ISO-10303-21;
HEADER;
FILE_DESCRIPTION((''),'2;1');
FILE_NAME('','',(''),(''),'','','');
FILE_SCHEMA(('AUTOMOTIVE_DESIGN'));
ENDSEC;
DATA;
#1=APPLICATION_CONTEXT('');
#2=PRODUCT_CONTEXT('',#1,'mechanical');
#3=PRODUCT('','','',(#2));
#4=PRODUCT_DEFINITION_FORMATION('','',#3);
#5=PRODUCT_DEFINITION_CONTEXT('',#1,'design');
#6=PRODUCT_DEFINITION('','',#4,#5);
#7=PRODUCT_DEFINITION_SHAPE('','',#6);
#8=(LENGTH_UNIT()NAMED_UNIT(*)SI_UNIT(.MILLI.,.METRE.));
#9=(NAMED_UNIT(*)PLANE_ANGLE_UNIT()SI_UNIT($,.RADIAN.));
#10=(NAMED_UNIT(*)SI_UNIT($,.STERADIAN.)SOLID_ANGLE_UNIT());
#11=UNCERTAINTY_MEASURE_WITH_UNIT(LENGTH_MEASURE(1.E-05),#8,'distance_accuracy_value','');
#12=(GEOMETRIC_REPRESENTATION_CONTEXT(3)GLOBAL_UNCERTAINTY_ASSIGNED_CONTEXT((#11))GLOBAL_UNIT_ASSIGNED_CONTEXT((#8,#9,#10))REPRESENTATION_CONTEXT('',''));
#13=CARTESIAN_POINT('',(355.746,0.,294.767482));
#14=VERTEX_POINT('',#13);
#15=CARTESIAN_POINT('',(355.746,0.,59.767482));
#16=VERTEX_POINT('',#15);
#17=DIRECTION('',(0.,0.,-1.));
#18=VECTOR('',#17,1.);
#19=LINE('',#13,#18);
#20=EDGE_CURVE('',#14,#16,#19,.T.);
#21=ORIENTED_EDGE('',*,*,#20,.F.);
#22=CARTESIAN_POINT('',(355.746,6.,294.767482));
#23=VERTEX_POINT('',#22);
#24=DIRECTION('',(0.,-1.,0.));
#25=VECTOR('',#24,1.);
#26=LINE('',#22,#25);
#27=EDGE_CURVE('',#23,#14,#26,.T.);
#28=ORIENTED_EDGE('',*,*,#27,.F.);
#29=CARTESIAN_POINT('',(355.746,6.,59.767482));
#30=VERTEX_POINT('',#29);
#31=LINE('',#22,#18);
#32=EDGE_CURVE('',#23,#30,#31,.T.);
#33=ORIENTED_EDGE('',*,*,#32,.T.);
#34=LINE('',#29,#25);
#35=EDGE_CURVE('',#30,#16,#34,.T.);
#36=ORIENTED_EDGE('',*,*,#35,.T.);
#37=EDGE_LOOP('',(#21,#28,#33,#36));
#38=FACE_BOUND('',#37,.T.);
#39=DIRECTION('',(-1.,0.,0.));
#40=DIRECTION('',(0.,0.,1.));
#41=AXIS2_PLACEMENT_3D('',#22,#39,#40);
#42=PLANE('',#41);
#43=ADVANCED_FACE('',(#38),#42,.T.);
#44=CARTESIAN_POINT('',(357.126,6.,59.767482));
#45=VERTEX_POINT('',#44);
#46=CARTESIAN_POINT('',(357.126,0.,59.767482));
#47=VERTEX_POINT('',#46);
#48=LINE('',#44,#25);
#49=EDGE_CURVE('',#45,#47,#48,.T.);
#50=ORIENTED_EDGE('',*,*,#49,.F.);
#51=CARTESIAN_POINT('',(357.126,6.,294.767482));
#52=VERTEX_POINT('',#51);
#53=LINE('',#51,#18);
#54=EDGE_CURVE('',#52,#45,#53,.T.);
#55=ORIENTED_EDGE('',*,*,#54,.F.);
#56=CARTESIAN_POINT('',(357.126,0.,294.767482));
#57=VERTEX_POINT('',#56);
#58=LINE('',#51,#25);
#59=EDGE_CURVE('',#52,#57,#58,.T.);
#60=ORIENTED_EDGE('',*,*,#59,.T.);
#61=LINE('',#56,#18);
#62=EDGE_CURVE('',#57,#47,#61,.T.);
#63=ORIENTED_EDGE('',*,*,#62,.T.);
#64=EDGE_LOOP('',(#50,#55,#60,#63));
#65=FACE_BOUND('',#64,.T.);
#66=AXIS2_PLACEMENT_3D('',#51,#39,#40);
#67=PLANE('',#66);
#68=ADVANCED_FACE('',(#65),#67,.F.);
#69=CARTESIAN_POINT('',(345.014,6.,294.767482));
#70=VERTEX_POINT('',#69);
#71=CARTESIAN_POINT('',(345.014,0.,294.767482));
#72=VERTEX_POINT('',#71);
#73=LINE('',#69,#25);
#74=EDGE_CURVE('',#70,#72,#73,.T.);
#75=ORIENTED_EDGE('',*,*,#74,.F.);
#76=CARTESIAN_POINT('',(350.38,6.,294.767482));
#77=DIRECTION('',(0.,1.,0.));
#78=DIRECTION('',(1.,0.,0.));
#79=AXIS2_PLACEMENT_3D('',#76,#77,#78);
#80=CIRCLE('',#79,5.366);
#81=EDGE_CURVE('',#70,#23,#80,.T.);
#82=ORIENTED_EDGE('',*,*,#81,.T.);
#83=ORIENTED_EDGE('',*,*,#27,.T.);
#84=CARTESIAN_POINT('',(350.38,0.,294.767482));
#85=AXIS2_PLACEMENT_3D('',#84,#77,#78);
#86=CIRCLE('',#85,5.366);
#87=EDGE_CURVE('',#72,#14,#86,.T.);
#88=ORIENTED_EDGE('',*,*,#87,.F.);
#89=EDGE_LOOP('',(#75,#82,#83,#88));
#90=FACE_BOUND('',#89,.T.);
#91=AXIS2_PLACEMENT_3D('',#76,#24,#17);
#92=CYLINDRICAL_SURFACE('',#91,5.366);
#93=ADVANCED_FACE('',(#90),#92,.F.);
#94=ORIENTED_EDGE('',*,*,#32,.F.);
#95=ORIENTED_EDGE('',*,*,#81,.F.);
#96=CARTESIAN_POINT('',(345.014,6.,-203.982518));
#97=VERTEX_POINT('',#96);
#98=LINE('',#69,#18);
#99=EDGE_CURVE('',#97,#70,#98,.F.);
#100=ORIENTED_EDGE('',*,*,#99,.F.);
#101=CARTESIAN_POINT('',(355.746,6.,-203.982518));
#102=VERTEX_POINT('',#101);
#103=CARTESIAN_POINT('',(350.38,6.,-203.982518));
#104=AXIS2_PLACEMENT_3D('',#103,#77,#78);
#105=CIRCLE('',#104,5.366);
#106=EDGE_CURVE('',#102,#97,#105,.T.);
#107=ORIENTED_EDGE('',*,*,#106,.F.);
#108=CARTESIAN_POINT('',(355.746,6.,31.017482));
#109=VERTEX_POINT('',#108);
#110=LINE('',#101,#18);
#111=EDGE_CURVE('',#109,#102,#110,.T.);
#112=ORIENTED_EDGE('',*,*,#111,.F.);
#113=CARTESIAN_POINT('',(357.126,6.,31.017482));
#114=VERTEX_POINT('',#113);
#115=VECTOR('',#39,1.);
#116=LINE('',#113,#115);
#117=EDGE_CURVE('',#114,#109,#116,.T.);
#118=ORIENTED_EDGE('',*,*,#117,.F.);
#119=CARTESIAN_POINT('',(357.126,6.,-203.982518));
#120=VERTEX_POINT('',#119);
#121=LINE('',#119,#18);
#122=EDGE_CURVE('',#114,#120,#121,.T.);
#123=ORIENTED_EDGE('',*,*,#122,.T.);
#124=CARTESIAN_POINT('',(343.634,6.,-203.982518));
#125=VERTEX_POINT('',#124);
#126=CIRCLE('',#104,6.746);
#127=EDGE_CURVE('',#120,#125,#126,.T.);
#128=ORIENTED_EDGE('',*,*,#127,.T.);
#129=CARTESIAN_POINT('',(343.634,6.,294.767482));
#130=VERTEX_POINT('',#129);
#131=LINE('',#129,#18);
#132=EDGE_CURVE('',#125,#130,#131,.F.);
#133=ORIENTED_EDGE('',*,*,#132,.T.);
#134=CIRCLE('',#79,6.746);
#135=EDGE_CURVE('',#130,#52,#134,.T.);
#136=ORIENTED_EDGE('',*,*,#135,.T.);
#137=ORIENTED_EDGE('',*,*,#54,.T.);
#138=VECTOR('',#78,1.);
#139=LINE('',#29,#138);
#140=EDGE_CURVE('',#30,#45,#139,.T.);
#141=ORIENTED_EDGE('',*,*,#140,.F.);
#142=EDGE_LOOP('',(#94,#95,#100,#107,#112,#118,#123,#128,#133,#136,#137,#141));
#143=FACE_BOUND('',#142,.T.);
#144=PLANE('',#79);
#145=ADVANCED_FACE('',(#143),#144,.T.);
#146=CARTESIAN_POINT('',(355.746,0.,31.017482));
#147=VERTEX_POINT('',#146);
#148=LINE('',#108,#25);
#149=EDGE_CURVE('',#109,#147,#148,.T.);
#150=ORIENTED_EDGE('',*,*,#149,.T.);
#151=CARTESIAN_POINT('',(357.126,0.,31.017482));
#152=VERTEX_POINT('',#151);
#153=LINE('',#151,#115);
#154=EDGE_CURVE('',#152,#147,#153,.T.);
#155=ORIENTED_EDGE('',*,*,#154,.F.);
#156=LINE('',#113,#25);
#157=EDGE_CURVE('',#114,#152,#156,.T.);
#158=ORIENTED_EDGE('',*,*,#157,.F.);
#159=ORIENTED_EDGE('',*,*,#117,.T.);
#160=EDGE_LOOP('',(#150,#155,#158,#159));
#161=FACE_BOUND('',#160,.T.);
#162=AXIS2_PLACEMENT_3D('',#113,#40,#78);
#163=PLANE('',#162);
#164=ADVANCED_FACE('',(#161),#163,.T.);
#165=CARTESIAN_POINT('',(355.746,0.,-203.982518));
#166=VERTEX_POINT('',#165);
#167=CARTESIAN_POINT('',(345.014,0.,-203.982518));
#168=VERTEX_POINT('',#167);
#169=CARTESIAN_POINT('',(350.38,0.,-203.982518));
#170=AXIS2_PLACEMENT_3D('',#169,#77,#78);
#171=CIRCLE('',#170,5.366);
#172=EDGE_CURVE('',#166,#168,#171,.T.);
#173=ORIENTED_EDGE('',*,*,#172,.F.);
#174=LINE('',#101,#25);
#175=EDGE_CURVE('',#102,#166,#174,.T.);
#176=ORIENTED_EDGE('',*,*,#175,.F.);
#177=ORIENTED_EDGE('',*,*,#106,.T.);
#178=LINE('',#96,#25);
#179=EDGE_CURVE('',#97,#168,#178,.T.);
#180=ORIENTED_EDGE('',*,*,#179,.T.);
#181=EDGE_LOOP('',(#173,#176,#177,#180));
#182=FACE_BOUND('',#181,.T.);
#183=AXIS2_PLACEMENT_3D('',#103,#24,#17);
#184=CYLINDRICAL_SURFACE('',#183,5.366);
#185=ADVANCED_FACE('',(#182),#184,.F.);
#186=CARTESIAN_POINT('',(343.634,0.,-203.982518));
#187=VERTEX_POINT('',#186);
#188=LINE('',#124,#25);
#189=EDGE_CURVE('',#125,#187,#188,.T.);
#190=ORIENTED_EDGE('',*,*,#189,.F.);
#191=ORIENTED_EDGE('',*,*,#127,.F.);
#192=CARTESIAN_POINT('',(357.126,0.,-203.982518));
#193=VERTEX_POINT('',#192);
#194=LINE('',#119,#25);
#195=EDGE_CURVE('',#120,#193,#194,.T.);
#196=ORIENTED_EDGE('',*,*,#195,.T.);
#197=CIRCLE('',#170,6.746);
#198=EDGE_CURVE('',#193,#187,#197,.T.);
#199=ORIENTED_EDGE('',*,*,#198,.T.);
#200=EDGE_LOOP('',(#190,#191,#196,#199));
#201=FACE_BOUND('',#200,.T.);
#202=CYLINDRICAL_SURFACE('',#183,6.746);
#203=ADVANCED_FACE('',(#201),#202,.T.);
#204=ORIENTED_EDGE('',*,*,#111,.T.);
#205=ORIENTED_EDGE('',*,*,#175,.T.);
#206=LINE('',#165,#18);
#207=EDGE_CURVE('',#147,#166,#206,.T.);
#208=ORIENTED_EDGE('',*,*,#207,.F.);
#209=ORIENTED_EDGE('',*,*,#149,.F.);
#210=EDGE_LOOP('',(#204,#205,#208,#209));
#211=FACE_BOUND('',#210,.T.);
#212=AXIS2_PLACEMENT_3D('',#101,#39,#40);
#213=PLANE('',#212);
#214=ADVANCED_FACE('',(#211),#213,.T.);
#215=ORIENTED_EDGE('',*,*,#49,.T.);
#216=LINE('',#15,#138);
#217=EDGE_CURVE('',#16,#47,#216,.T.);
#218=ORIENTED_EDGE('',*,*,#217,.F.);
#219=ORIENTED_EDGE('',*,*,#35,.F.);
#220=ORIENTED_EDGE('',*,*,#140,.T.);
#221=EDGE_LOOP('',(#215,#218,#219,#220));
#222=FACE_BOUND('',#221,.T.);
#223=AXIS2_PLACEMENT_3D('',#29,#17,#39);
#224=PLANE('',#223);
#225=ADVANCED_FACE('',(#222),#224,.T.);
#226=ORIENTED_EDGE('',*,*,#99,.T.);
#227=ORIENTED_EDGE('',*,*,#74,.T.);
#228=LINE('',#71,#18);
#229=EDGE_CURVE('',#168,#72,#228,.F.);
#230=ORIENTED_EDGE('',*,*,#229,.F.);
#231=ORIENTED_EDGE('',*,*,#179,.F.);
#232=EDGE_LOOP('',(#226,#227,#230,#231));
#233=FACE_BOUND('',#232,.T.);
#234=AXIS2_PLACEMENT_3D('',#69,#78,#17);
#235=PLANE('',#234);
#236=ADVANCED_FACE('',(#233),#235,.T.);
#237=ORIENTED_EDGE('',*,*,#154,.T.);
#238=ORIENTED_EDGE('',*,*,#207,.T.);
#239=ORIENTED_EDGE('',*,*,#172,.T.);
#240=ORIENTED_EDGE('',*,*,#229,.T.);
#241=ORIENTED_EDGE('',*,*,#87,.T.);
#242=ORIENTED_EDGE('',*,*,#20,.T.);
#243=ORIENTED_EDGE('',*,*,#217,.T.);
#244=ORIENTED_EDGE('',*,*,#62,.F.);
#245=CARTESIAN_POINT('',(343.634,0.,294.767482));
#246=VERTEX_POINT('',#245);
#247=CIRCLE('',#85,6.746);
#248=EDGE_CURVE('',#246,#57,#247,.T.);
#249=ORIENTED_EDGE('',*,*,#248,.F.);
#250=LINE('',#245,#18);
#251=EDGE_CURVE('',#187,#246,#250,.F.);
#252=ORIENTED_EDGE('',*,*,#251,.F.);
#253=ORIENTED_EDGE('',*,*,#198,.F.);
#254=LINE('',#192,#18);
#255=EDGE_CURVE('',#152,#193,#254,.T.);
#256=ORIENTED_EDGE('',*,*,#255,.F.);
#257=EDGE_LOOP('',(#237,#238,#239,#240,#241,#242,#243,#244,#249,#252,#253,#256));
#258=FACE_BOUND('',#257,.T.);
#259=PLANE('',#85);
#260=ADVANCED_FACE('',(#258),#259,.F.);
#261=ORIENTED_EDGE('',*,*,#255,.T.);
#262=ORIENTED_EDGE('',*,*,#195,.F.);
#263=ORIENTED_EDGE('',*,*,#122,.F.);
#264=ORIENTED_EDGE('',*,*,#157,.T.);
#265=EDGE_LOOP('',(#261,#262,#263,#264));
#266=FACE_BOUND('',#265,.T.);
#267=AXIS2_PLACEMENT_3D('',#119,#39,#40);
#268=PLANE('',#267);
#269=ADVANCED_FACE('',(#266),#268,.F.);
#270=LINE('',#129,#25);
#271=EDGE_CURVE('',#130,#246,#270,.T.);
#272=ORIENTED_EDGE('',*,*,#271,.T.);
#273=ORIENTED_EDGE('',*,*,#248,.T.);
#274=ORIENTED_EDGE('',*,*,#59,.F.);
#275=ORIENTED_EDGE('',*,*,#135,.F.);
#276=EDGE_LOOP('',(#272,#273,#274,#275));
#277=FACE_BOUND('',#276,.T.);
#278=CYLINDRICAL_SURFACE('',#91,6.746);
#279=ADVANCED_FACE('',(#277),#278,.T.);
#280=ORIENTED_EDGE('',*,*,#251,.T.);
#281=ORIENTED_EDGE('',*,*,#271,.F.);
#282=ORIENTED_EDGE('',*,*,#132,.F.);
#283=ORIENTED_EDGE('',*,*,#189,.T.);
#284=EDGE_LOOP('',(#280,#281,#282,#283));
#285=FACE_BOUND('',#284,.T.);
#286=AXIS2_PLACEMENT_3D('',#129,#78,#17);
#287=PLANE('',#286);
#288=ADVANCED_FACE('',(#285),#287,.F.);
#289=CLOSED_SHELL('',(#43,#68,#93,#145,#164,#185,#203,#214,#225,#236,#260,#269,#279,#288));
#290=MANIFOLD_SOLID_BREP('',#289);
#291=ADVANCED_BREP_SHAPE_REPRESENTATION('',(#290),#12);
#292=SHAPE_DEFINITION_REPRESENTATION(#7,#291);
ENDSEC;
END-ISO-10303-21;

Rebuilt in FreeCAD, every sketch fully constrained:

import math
import FreeCAD as App
import Part
import Sketcher
from FreeCAD import Vector

doc = App.newDocument("Part")
params = doc.addObject("Spreadsheet::Sheet", "Params")
for row, (alias, value) in enumerate([
    ("sketch1_height", "235 mm"),
    ("sketch1_height2", "498.75 mm"),
    ("pad1_length", "6 mm"),
], start=1):
    params.set(f"A{row}", alias)
    params.set(f"B{row}", "=" + value)
    params.setAlias(f"B{row}", alias)

body = doc.addObject("PartDesign::Body", "Body")

# Sketch on XZ plane
sketch1 = doc.addObject("Sketcher::SketchObject", "Sketch")
body.addObject(sketch1)
sketch1.AttachmentSupport = (doc.XZ_Plane, [""])
sketch1.MapMode = "FlatFace"
sketch1.addGeometry(Part.LineSegment(Vector(355.7, 59.8, 0), Vector(355.7, 294.8, 0)), False)
sketch1.addGeometry(Part.ArcOfCircle(Part.Circle(Vector(350.4, 294.8, 0), Vector(0, 0, 1), 5.4), math.radians(0), math.radians(180)), False)
sketch1.addGeometry(Part.LineSegment(Vector(345, 294.8, 0), Vector(345, -204, 0)), False)
sketch1.addGeometry(Part.ArcOfCircle(Part.Circle(Vector(350.4, -204, 0), Vector(0, 0, 1), 5.4), math.radians(180), math.radians(360)), False)
sketch1.addGeometry(Part.LineSegment(Vector(355.7, -204, 0), Vector(355.7, 31, 0)), False)
sketch1.addGeometry(Part.LineSegment(Vector(355.7, 31, 0), Vector(357.1, 31, 0)), False)
sketch1.addGeometry(Part.LineSegment(Vector(357.1, 31, 0), Vector(357.1, -204, 0)), False)
sketch1.addGeometry(Part.ArcOfCircle(Part.Circle(Vector(350.4, -204, 0), Vector(0, 0, 1), 6.7), math.radians(180), math.radians(360)), False)
sketch1.addGeometry(Part.LineSegment(Vector(343.6, -204, 0), Vector(343.6, 294.8, 0)), False)
sketch1.addGeometry(Part.ArcOfCircle(Part.Circle(Vector(350.4, 294.8, 0), Vector(0, 0, 1), 6.7), math.radians(0), math.radians(180)), False)
sketch1.addGeometry(Part.LineSegment(Vector(357.1, 294.8, 0), Vector(357.1, 59.8, 0)), False)
sketch1.addGeometry(Part.LineSegment(Vector(357.1, 59.8, 0), Vector(355.7, 59.8, 0)), False)
sketch1.addConstraint(Sketcher.Constraint("Tangent", 0, 2, 1, 1))
sketch1.addConstraint(Sketcher.Constraint("Tangent", 1, 2, 2, 1))
sketch1.addConstraint(Sketcher.Constraint("Tangent", 2, 2, 3, 1))
sketch1.addConstraint(Sketcher.Constraint("Tangent", 3, 2, 4, 1))
sketch1.addConstraint(Sketcher.Constraint("Coincident", 4, 2, 5, 1))
sketch1.addConstraint(Sketcher.Constraint("Coincident", 5, 2, 6, 1))
sketch1.addConstraint(Sketcher.Constraint("Tangent", 6, 2, 7, 2))
sketch1.addConstraint(Sketcher.Constraint("Tangent", 7, 1, 8, 1))
sketch1.addConstraint(Sketcher.Constraint("Tangent", 8, 2, 9, 2))
sketch1.addConstraint(Sketcher.Constraint("Tangent", 9, 1, 10, 1))
sketch1.addConstraint(Sketcher.Constraint("Coincident", 10, 2, 11, 1))
sketch1.addConstraint(Sketcher.Constraint("Coincident", 11, 2, 0, 1))
sketch1.addConstraint(Sketcher.Constraint("Vertical", 0))
sketch1.addConstraint(Sketcher.Constraint("Vertical", 2))
sketch1.addConstraint(Sketcher.Constraint("Vertical", 4))
sketch1.addConstraint(Sketcher.Constraint("Horizontal", 5))
sketch1.addConstraint(Sketcher.Constraint("Vertical", 6))
sketch1.addConstraint(Sketcher.Constraint("Vertical", 8))
sketch1.addConstraint(Sketcher.Constraint("Vertical", 10))
sketch1.addConstraint(Sketcher.Constraint("Horizontal", 11))
sketch1.addConstraint(Sketcher.Constraint("Coincident", 7, 3, 3, 3))
sketch1.addConstraint(Sketcher.Constraint("Coincident", 9, 3, 1, 3))
sketch1.addConstraint(Sketcher.Constraint("Equal", 1, 3))
sketch1.addConstraint(Sketcher.Constraint("Equal", 0, 4))
sketch1.addConstraint(Sketcher.Constraint("DistanceY", 0, 1, 0, 2, 235.0))
sketch1.addConstraint(Sketcher.Constraint("Radius", 1, 5.366))
sketch1.addConstraint(Sketcher.Constraint("Radius", 7, 6.746))
sketch1.addConstraint(Sketcher.Constraint("DistanceY", 2, 2, 2, 1, 498.75))
sketch1.addConstraint(Sketcher.Constraint("DistanceX", -1, 1, 1, 3, 350.38))
sketch1.addConstraint(Sketcher.Constraint("DistanceY", -1, 1, 1, 3, 294.767482))
sketch1.setExpression("Constraints[24]", "Params.sketch1_height")
sketch1.setExpression("Constraints[27]", "Params.sketch1_height2")
pad1 = doc.addObject("PartDesign::Pad", "Pad")
body.addObject(pad1)
pad1.Profile = sketch1
pad1.setExpression("Length", "Params.pad1_length")
pad1.Reversed = True

doc.recompute()
